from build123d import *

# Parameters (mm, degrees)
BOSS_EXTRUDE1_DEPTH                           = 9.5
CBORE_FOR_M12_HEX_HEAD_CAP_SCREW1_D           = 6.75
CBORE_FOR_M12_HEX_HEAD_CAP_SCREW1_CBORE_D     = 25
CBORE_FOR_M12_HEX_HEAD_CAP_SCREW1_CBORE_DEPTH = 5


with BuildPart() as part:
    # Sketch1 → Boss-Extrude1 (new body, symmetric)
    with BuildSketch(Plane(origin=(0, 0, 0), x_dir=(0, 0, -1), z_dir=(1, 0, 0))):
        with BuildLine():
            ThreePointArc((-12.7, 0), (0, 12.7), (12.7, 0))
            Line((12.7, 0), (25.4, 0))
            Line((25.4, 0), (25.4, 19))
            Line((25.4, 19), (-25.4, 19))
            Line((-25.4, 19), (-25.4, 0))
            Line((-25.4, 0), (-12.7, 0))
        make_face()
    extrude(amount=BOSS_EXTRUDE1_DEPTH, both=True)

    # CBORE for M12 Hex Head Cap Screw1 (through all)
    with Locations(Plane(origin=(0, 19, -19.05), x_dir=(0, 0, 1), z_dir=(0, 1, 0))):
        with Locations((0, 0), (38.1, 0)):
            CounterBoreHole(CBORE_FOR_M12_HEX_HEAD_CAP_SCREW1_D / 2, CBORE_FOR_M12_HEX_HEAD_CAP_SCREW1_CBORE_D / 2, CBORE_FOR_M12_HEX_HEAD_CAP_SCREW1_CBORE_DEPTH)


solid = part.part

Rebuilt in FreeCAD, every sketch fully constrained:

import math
import FreeCAD as App
import Part
import Sketcher

V = App.Vector
Q = App.Units.Quantity

doc = App.newDocument("Part")
params = doc.addObject("Spreadsheet::Sheet", "Params")
for row, (alias, value) in enumerate([
    ("sketch1_radius", "0.5 in"),
    ("sketch1_height", "2 in"),
    ("pad1_length", "19 mm"),
    ("hole_diameter", "6.75 mm"),
    ("hole_cbore_diameter", "25 mm"),
    ("hole_cbore_depth", "5 mm"),
], start=1):
    params.set(f"A{row}", alias)
    params.set(f"B{row}", "=" + value)
    params.setAlias(f"B{row}", alias)

body = doc.addObject("PartDesign::Body", "Body")

sketch1 = body.newObject("Sketcher::SketchObject", "Sketch")
sketch1.AttachmentSupport = (doc.getObject("YZ_Plane"), [""])
sketch1.MapMode = "FlatFace"
sketch1.addGeometry([
    Part.ArcOfCircle(Part.Circle(V(0, 0, 0), V(0, 0, 1), 12.7), math.radians(-90), math.radians(90)),
    Part.LineSegment(V(0, -12.7, 0), V(0, -25.4, 0)),
    Part.LineSegment(V(0, -25.4, 0), V(19, -25.4, 0)),
    Part.LineSegment(V(19, -25.4, 0), V(19, 25.4, 0)),
    Part.LineSegment(V(19, 25.4, 0), V(0, 25.4, 0)),
    Part.LineSegment(V(0, 25.4, 0), V(0, 12.7, 0)),
], False)
sketch1.addConstraint([
    Sketcher.Constraint("Coincident", 0, 1, 1, 1),
    Sketcher.Constraint("Coincident", 1, 2, 2, 1),
    Sketcher.Constraint("Coincident", 2, 2, 3, 1),
    Sketcher.Constraint("Coincident", 3, 2, 4, 1),
    Sketcher.Constraint("Coincident", 4, 2, 5, 1),
    Sketcher.Constraint("Coincident", 5, 2, 0, 2),
    Sketcher.Constraint("Vertical", 1),
    Sketcher.Constraint("Horizontal", 2),
    Sketcher.Constraint("Vertical", 3),
    Sketcher.Constraint("Horizontal", 4),
    Sketcher.Constraint("Vertical", 5),
    Sketcher.Constraint("Coincident", 0, 3, -1, 1),
    Sketcher.Constraint("Symmetric", 1, 2, 4, 2, -1, 1),
    Sketcher.Constraint("PointOnObject", 0, 1, -2),
    Sketcher.Constraint("Radius", 0, Q("0.5 in")),
    Sketcher.Constraint("DistanceY", 3, 1, 3, 2, Q("2 in")),
    Sketcher.Constraint("DistanceX", 2, 1, 2, 2, 19.0),
])
sketch1.setExpression("Constraints[14]", "Params.sketch1_radius")
sketch1.setExpression("Constraints[15]", "Params.sketch1_height")
pad1 = body.newObject("PartDesign::Pad", "Pad")
pad1.Profile = sketch1
pad1.setExpression("Length", "Params.pad1_length")
pad1.Midplane = True

sketch2 = body.newObject("Sketcher::SketchObject", "Sketch001")
sketch2.AttachmentSupport = (doc.getObject("XZ_Plane"), [""])
sketch2.MapMode = "FlatFace"
sketch2.AttachmentOffset = App.Placement(V(0, 0, -19), App.Rotation())
sketch2.addGeometry([
    Part.Circle(V(0, -19.05, 0), V(0, 0, 1), 3.375),
    Part.Circle(V(0, 19.05, 0), V(0, 0, 1), 3.375),
], False)
sketch2.addConstraint([
    Sketcher.Constraint("Equal", 0, 1),
    Sketcher.Constraint("Symmetric", 0, 3, 1, 3, -1, 1),
    Sketcher.Constraint("PointOnObject", 0, 3, -2),
    Sketcher.Constraint("DistanceY", 0, 3, 1, 3, Q("1.5 in")),
    Sketcher.Constraint("Diameter", 0, 6.75),
])
doc.recompute()
hole = body.newObject("PartDesign::Hole", "Hole")
hole.Profile = sketch2
hole.ThreadType = "None"
hole.setExpression("Diameter", "Params.hole_diameter")
hole.DepthType = "ThroughAll"
hole.HoleCutType = "Counterbore"
hole.setExpression("HoleCutDiameter", "Params.hole_cbore_diameter")
hole.setExpression("HoleCutDepth", "Params.hole_cbore_depth")
hole.Reversed = True

doc.recompute()
